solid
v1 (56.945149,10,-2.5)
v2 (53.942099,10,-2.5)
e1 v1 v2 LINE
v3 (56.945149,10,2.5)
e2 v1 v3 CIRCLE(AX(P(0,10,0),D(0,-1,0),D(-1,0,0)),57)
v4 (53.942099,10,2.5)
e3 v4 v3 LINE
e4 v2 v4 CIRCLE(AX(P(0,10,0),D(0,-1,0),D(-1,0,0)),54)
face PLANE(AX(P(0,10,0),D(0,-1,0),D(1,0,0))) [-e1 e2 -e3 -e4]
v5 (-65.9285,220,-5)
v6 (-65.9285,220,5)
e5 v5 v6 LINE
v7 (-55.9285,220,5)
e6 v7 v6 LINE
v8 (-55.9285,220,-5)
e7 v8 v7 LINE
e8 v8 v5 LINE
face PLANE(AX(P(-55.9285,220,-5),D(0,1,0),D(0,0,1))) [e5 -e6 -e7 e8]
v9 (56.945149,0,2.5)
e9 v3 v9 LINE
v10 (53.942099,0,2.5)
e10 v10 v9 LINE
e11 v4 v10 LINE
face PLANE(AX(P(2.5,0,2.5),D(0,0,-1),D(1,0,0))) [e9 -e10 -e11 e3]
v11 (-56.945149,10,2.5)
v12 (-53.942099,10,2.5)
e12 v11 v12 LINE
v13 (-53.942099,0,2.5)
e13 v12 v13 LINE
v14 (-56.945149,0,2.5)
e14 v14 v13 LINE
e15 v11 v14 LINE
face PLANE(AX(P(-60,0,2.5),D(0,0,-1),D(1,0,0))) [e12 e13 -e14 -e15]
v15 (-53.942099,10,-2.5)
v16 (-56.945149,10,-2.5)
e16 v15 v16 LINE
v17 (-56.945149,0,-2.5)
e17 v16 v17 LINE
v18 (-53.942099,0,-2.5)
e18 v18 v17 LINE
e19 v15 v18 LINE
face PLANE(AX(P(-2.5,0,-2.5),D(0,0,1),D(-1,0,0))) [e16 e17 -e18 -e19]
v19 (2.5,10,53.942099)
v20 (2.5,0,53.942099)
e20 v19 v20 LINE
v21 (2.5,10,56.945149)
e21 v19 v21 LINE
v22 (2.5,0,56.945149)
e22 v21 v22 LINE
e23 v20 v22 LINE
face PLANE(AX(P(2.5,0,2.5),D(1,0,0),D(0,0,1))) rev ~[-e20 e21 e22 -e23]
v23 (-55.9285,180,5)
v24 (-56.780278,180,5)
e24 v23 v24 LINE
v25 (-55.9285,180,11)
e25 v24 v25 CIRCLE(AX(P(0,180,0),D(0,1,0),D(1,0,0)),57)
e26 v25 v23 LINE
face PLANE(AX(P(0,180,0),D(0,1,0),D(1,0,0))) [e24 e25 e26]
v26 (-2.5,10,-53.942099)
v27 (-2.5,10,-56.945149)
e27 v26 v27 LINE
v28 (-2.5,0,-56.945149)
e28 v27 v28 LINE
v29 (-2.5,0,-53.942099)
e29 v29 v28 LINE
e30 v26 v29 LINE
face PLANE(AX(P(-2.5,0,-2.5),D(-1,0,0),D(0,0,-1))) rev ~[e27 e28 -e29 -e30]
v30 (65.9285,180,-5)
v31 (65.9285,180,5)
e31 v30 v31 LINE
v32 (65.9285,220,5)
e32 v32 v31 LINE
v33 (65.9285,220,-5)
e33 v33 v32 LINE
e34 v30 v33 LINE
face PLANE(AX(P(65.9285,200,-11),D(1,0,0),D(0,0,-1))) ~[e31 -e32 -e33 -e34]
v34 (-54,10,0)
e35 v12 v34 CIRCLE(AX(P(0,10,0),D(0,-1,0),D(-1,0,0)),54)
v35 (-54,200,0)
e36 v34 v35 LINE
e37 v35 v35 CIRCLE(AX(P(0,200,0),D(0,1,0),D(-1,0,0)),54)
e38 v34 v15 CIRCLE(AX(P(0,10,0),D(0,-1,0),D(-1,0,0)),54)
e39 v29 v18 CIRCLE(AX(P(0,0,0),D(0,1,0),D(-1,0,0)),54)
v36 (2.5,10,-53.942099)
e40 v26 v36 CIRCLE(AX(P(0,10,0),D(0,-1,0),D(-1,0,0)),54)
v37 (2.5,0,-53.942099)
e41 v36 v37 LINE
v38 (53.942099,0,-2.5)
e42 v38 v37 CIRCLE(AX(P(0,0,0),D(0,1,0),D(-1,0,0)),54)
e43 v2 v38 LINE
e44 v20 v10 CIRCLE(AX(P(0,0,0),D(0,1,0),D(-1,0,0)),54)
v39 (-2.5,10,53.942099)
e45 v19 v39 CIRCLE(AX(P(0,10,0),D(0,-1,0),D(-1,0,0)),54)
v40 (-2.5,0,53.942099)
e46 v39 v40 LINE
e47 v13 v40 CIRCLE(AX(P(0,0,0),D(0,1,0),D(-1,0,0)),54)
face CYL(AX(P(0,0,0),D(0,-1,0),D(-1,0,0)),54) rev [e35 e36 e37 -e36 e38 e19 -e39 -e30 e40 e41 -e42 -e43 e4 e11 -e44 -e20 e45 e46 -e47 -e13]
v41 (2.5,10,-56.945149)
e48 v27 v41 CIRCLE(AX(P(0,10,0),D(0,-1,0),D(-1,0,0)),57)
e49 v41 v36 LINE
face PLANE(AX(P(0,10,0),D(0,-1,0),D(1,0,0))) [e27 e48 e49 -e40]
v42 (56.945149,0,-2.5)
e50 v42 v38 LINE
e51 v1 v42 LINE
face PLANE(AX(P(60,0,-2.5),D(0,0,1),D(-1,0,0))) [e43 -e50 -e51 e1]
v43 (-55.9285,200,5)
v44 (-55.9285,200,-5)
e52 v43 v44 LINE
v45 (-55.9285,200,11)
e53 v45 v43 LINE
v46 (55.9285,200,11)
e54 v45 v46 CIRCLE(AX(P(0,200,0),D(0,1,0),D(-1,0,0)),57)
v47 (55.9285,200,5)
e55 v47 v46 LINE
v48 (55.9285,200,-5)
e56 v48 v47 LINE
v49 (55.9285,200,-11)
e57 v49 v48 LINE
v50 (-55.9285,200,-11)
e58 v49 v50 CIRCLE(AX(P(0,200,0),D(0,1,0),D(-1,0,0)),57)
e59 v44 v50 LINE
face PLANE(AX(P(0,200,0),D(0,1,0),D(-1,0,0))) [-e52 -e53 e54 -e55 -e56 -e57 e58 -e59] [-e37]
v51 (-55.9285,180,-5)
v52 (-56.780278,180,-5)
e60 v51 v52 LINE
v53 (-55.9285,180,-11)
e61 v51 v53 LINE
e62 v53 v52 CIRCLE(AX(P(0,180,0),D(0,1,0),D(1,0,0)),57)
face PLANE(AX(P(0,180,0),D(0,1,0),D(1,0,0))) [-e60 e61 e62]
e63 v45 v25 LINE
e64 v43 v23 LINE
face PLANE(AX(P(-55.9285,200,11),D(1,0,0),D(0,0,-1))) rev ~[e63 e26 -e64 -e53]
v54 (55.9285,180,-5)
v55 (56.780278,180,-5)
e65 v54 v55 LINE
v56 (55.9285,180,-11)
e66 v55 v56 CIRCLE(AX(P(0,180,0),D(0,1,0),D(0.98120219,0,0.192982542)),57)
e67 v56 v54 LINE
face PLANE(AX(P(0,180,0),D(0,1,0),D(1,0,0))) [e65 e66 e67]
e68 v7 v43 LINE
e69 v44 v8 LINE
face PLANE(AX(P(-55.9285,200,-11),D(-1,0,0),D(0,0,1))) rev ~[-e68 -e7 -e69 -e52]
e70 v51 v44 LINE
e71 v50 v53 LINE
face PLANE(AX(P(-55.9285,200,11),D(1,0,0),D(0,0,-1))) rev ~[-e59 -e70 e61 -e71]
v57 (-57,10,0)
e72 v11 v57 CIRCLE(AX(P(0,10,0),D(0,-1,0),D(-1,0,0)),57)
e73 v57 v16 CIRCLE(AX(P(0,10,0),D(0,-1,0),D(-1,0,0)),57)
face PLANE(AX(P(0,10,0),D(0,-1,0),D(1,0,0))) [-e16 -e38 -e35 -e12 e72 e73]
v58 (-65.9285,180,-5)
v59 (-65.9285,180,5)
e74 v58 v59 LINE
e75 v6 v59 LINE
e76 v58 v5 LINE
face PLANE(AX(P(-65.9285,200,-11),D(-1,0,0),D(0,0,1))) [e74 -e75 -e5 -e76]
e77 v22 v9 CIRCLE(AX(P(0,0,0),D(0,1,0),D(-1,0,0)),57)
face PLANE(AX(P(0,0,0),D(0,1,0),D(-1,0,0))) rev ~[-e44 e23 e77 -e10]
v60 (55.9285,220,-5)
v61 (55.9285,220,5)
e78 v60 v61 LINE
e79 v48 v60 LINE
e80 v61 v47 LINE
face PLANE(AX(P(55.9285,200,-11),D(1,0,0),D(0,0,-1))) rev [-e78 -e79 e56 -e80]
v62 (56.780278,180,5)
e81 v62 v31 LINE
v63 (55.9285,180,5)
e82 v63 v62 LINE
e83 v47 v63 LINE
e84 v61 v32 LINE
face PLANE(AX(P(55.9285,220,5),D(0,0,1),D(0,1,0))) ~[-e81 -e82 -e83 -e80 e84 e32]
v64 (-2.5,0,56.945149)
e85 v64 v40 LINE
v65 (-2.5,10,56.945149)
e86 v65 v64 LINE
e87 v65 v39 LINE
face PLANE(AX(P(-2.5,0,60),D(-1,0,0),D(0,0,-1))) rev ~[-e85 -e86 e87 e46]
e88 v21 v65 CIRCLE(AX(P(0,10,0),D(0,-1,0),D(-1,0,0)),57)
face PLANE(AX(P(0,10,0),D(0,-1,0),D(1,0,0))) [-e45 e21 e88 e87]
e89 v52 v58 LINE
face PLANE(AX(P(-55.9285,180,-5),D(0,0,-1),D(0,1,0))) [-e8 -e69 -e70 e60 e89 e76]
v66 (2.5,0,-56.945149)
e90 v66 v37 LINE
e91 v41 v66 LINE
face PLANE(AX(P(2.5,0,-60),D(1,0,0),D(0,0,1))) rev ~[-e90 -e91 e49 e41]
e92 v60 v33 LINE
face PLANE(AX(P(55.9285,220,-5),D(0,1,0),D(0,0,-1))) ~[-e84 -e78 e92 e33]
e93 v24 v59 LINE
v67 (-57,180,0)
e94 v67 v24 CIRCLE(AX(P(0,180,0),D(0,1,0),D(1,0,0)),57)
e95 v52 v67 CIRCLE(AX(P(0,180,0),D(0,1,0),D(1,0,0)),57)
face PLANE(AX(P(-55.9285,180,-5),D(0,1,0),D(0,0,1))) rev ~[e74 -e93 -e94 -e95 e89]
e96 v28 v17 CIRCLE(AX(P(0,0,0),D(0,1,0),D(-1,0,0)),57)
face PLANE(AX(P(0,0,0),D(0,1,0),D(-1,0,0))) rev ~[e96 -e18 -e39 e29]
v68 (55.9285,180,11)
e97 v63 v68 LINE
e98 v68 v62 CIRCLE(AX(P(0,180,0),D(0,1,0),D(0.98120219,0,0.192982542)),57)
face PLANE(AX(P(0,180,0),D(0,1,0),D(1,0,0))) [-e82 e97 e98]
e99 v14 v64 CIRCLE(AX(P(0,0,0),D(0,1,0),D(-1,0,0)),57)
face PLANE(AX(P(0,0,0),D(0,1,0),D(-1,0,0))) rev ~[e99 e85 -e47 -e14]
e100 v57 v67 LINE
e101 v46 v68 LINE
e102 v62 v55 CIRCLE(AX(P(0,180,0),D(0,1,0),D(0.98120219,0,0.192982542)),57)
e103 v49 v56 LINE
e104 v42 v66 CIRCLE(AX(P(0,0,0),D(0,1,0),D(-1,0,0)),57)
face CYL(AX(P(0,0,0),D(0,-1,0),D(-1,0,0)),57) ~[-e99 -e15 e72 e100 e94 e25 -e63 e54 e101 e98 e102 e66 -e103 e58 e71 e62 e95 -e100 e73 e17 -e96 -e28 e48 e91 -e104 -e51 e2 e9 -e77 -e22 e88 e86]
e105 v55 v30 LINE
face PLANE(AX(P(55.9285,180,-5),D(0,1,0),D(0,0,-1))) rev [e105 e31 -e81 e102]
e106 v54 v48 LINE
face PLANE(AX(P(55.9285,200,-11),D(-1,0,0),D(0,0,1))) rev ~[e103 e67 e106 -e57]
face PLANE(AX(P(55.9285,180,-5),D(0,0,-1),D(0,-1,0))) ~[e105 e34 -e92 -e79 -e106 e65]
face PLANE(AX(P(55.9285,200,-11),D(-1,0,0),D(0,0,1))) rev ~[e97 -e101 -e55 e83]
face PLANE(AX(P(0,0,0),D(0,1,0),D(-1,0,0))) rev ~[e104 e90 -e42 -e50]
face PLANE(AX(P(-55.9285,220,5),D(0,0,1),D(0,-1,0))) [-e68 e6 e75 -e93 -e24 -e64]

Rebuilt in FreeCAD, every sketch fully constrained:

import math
import FreeCAD as App
import Part
import Sketcher


def add_polygon(sketch, points):
    """Adds a closed chain of lines whose ends are joined by coincident constraints."""
    first, n = sketch.GeometryCount, len(points)
    for a, b in zip(points, points[1:] + points[:1]):
        sketch.addGeometry(Part.LineSegment(App.Vector(*a, 0), App.Vector(*b, 0)), False)
    for i in range(n):
        sketch.addConstraint(Sketcher.Constraint("Coincident", first + i, 2, first + (i + 1) % n, 1))

doc = App.newDocument("Part")
body = doc.addObject("PartDesign::Body", "Body")

sketch1 = body.newObject("Sketcher::SketchObject", "Sketch")
sketch1.AttachmentSupport = (doc.getObject("XZ_Plane"), [""])
sketch1.MapMode = "FlatFace"
sketch1.addGeometry(Part.Circle(App.Vector(0, 0, 0), App.Vector(0, 0, 1), 57), False)
sketch1.addGeometry(Part.Circle(App.Vector(0, 0, 0), App.Vector(0, 0, 1), 54), False)
sketch1.addConstraint(Sketcher.Constraint("Coincident", 0, 3, -1, 1))
sketch1.addConstraint(Sketcher.Constraint("Coincident", 1, 3, -1, 1))
sketch1.addConstraint(Sketcher.Constraint("Diameter", 0, 114.0))
sketch1.addConstraint(Sketcher.Constraint("Diameter", 1, 108.0))
pad1 = body.newObject("PartDesign::Pad", "Pad")
pad1.Profile = sketch1
pad1.Length = 200
pad1.Reversed = True

sketch2 = body.newObject("Sketcher::SketchObject", "Sketch001")
sketch2.AttachmentSupport = (doc.getObject("XZ_Plane"), [""])
sketch2.MapMode = "FlatFace"
sketch2.AttachmentOffset = App.Placement(App.Vector(0, 0, -200), App.Rotation())
sketch2.addGeometry(Part.ArcOfCircle(Part.Circle(App.Vector(0, 0, 0), App.Vector(0, 0, 1), 57), math.radians(-11), math.radians(11)), False)
sketch2.addGeometry(Part.LineSegment(App.Vector(56, 11, 0), App.Vector(56, -11, 0)), False)
sketch2.addGeometry(Part.LineSegment(App.Vector(-56, 11, 0), App.Vector(-56, -11, 0)), False)
sketch2.addGeometry(Part.ArcOfCircle(Part.Circle(App.Vector(0, 0, 0), App.Vector(0, 0, 1), 57), math.radians(169), math.radians(191)), False)
sketch2.addConstraint(Sketcher.Constraint("Coincident", 0, 1, 1, 2))
sketch2.addConstraint(Sketcher.Constraint("Coincident", 1, 1, 0, 2))
sketch2.addConstraint(Sketcher.Constraint("Coincident", 2, 1, 3, 1))
sketch2.addConstraint(Sketcher.Constraint("Coincident", 3, 2, 2, 2))
sketch2.addConstraint(Sketcher.Constraint("Vertical", 1))
sketch2.addConstraint(Sketcher.Constraint("Vertical", 2))
sketch2.addConstraint(Sketcher.Constraint("Coincident", 0, 3, -1, 1))
sketch2.addConstraint(Sketcher.Constraint("Coincident", 3, 3, -1, 1))
sketch2.addConstraint(Sketcher.Constraint("Equal", 0, 3))
sketch2.addConstraint(Sketcher.Constraint("Horizontal", 1, 1, 2, 1))
sketch2.addConstraint(Sketcher.Constraint("DistanceY", 1, 2, 1, 1, 22.0))
sketch2.addConstraint(Sketcher.Constraint("Radius", 0, 57.0))
pocket1 = body.newObject("PartDesign::Pocket", "Pocket")
pocket1.Profile = sketch2
pocket1.Length = 20
pocket1.Reversed = True

sketch3 = body.newObject("Sketcher::SketchObject", "Sketch002")
sketch3.AttachmentSupport = (doc.getObject("YZ_Plane"), [""])
sketch3.MapMode = "FlatFace"
sketch3.AttachmentOffset = App.Placement(App.Vector(0, 0, -55.9285), App.Rotation())
add_polygon(sketch3, [(220, -5), (180, -5), (180, 5), (220, 5)])
sketch3.addConstraint(Sketcher.Constraint("Horizontal", 0))
sketch3.addConstraint(Sketcher.Constraint("Vertical", 1))
sketch3.addConstraint(Sketcher.Constraint("Horizontal", 2))
sketch3.addConstraint(Sketcher.Constraint("Vertical", 3))
sketch3.addConstraint(Sketcher.Constraint("DistanceX", 0, 2, 0, 1, 40.0))
sketch3.addConstraint(Sketcher.Constraint("DistanceY", 1, 1, 1, 2, 10.0))
sketch3.addConstraint(Sketcher.Constraint("DistanceX", -1, 1, 0, 2, 180.0))
sketch3.addConstraint(Sketcher.Constraint("DistanceY", 0, 2, -1, 1, 5.0))
pad2 = body.newObject("PartDesign::Pad", "Pad001")
pad2.Profile = sketch3
pad2.Length = 10
pad2.Reversed = True
doc.recompute()

mirrored = body.newObject("PartDesign::Mirrored", "Mirrored")
mirrored.Originals = [pad2]
mirrored.MirrorPlane = (doc.getObject("YZ_Plane"), [""])
body.Tip = mirrored

sketch4 = body.newObject("Sketcher::SketchObject", "Sketch003")
sketch4.AttachmentSupport = (doc.getObject("XZ_Plane"), [""])
sketch4.MapMode = "FlatFace"
add_polygon(sketch4, [(-2, -2), (-2, -60), (2, -60), (2, -2), (60, -2), (60, 2), (2, 2), (2, 60), (-2, 60), (-2, 2), (-60, 2), (-60, -2)])
sketch4.addConstraint(Sketcher.Constraint("Vertical", 0))
sketch4.addConstraint(Sketcher.Constraint("Horizontal", 1))
sketch4.addConstraint(Sketcher.Constraint("Vertical", 2))
sketch4.addConstraint(Sketcher.Constraint("Horizontal", 3))
sketch4.addConstraint(Sketcher.Constraint("Vertical", 4))
sketch4.addConstraint(Sketcher.Constraint("Horizontal", 5))
sketch4.addConstraint(Sketcher.Constraint("Vertical", 6))
sketch4.addConstraint(Sketcher.Constraint("Horizontal", 7))
sketch4.addConstraint(Sketcher.Constraint("Vertical", 8))
sketch4.addConstraint(Sketcher.Constraint("Horizontal", 9))
sketch4.addConstraint(Sketcher.Constraint("Vertical", 10))
sketch4.addConstraint(Sketcher.Constraint("Horizontal", 11))
sketch4.addConstraint(Sketcher.Constraint("Symmetric", 0, 2, 6, 2, -1, 1))
sketch4.addConstraint(Sketcher.Constraint("Symmetric", 2, 2, 8, 2, -1, 1))
sketch4.addConstraint(Sketcher.Constraint("Symmetric", 4, 2, 10, 2, -1, 1))
sketch4.addConstraint(Sketcher.Constraint("Symmetric", 5, 2, 8, 2, -2))
sketch4.addConstraint(Sketcher.Constraint("Equal", 11, 0))
sketch4.addConstraint(Sketcher.Constraint("Equal", 7, 4))
sketch4.addConstraint(Sketcher.Constraint("DistanceX", 1, 1, 1, 2, 5.0))
sketch4.addConstraint(Sketcher.Constraint("DistanceY", 1, 2, 6, 2, 120.0))
pocket2 = body.newObject("PartDesign::Pocket", "Pocket001")
pocket2.Profile = sketch4
pocket2.Length = 10

doc.recompute()
